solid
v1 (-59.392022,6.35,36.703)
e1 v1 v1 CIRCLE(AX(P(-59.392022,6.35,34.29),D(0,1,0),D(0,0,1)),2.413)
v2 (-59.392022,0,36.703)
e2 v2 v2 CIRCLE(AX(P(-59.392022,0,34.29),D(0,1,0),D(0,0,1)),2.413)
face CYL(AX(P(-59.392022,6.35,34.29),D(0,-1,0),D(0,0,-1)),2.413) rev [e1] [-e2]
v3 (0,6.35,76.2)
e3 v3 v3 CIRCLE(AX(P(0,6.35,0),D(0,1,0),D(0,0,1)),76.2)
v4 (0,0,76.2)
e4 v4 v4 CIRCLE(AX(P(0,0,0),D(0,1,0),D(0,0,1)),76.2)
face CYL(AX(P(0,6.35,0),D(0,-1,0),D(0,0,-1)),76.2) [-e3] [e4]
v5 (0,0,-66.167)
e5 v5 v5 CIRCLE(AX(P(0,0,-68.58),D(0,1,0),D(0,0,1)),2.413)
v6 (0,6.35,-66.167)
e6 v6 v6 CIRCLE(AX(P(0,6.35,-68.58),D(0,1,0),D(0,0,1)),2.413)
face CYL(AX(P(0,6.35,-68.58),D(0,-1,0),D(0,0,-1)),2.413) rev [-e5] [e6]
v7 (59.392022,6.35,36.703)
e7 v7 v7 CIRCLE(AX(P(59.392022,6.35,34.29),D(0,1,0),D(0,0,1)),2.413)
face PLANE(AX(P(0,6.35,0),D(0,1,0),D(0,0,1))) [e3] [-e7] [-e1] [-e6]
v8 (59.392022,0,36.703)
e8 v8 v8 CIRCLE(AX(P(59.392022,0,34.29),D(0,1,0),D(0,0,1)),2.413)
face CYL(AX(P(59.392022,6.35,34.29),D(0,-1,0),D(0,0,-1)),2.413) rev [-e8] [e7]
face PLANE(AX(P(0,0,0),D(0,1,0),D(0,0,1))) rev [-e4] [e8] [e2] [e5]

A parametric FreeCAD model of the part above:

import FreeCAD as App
import Part
import Sketcher
Q = App.Units.Quantity

doc = App.newDocument("Part")
body = doc.addObject("PartDesign::Body", "Body")

# Sketch on XZ plane
sketch1 = body.newObject("Sketcher::SketchObject", "Sketch")
sketch1.AttachmentSupport = (doc.getObject("XZ_Plane"), [""])
sketch1.MapMode = "FlatFace"
sketch1.addGeometry([
    Part.Circle(App.Vector(0, 0, 0), App.Vector(0, 0, 1), 76.2),  # 0
    Part.Circle(App.Vector(-53, -14.2, 0), App.Vector(0, 0, 1), 2.1),  # 1
    Part.Circle(App.Vector(-38.8, -38.8, 0), App.Vector(0, 0, 1), 2.1),  # 2
    Part.Circle(App.Vector(0, -68.6, 0), App.Vector(0, 0, 1), 2.4),  # 3
    Part.Circle(App.Vector(-14.2, -53, 0), App.Vector(0, 0, 1), 2.1),  # 4
    Part.Circle(App.Vector(-53, 14.2, 0), App.Vector(0, 0, 1), 2.1),  # 5
    Part.Circle(App.Vector(-59.4, 34.3, 0), App.Vector(0, 0, 1), 2.4),  # 6
    Part.Circle(App.Vector(-38.8, 38.8, 0), App.Vector(0, 0, 1), 2.1),  # 7
    Part.Circle(App.Vector(0, 0, 0), App.Vector(0, 0, 1), 50.8),  # 8
    Part.Circle(App.Vector(-14.2, 53, 0), App.Vector(0, 0, 1), 2.1),  # 9
    Part.Circle(App.Vector(14.2, -53, 0), App.Vector(0, 0, 1), 2.1),  # 10
    Part.Circle(App.Vector(38.8, -38.8, 0), App.Vector(0, 0, 1), 2.1),  # 11
    Part.Circle(App.Vector(53, -14.2, 0), App.Vector(0, 0, 1), 2.1),  # 12
    Part.Circle(App.Vector(14.2, 53, 0), App.Vector(0, 0, 1), 2.1),  # 13
    Part.Circle(App.Vector(53, 14.2, 0), App.Vector(0, 0, 1), 2.1),  # 14
    Part.Circle(App.Vector(38.8, 38.8, 0), App.Vector(0, 0, 1), 2.1),  # 15
    Part.Circle(App.Vector(59.4, 34.3, 0), App.Vector(0, 0, 1), 2.4),  # 16
], False)
sketch1.addConstraint([
    Sketcher.Constraint("Coincident", 0, 3, -1, 1),
    Sketcher.Constraint("Coincident", 8, 3, -1, 1),
    Sketcher.Constraint("Equal", 1, 2),
    Sketcher.Constraint("Equal", 2, 4),
    Sketcher.Constraint("Equal", 4, 5),
    Sketcher.Constraint("Equal", 3, 6),
    Sketcher.Constraint("Equal", 5, 7),
    Sketcher.Constraint("Equal", 7, 9),
    Sketcher.Constraint("Equal", 9, 10),
    Sketcher.Constraint("Equal", 10, 11),
    Sketcher.Constraint("Equal", 11, 12),
    Sketcher.Constraint("Equal", 12, 13),
    Sketcher.Constraint("Equal", 13, 14),
    Sketcher.Constraint("Equal", 14, 15),
    Sketcher.Constraint("Equal", 6, 16),
    Sketcher.Constraint("Symmetric", 9, 3, 10, 3, -1, 1),
    Sketcher.Constraint("Symmetric", 7, 3, 11, 3, -1, 1),
    Sketcher.Constraint("Symmetric", 5, 3, 12, 3, -1, 1),
    Sketcher.Constraint("Symmetric", 4, 3, 13, 3, -1, 1),
    Sketcher.Constraint("Symmetric", 1, 3, 14, 3, -1, 1),
    Sketcher.Constraint("Symmetric", 2, 3, 15, 3, -1, 1),
    Sketcher.Constraint("Symmetric", 4, 3, 10, 3, -2),
    Sketcher.Constraint("Symmetric", 2, 3, 11, 3, -2),
    Sketcher.Constraint("Symmetric", 1, 3, 12, 3, -2),
    Sketcher.Constraint("Symmetric", 6, 3, 16, 3, -2),
    Sketcher.Constraint("PointOnObject", 3, 3, -2),
    Sketcher.Constraint("Diameter", 0, Q("6 in")),
    Sketcher.Constraint("Diameter", 8, Q("4 in")),
    Sketcher.Constraint("Diameter", 3, Q("0.19 in")),
    Sketcher.Constraint("Diameter", 1, Q("0.164 in")),
    Sketcher.Constraint("DistanceY", 3, 3, -1, 1, Q("2.7 in")),
    Sketcher.Constraint("DistanceY", -1, 1, 6, 3, Q("1.35 in")),
    Sketcher.Constraint("DistanceY", 1, 3, -1, 1, 14.199848),
    Sketcher.Constraint("DistanceX", 4, 3, -1, 1, 14.199848),
    Sketcher.Constraint("DistanceX", 1, 3, 2, 3, 14.199848),
    Sketcher.Constraint("DistanceY", 2, 3, 1, 3, 24.594858),
    Sketcher.Constraint("DistanceX", 2, 3, 4, 3, 24.594858),
    Sketcher.Constraint("DistanceY", 4, 3, 2, 3, 14.199848),
    Sketcher.Constraint("DistanceX", 6, 3, 13, 3, 73.59187),
])
pad1 = body.newObject("PartDesign::Pad", "Pad")
pad1.Profile = sketch1
pad1.Length = Q("0.25 in")
pad1.Reversed = True

# Sketch on XZ plane
sketch2 = body.newObject("Sketcher::SketchObject", "Sketch001")
sketch2.AttachmentSupport = (doc.getObject("XZ_Plane"), [""])
sketch2.MapMode = "FlatFace"
sketch2.addGeometry(Part.Circle(App.Vector(0, 0, 0), App.Vector(0, 0, 1), 60), False)
sketch2.addConstraint([
    Sketcher.Constraint("Coincident", 0, 3, -1, 1),
    Sketcher.Constraint("Diameter", 0, 119.83544),
])
pad2 = body.newObject("PartDesign::Pad", "Pad001")
pad2.Profile = sketch2
pad2.Length = Q("0.25 in")
pad2.Reversed = True

doc.recompute()
